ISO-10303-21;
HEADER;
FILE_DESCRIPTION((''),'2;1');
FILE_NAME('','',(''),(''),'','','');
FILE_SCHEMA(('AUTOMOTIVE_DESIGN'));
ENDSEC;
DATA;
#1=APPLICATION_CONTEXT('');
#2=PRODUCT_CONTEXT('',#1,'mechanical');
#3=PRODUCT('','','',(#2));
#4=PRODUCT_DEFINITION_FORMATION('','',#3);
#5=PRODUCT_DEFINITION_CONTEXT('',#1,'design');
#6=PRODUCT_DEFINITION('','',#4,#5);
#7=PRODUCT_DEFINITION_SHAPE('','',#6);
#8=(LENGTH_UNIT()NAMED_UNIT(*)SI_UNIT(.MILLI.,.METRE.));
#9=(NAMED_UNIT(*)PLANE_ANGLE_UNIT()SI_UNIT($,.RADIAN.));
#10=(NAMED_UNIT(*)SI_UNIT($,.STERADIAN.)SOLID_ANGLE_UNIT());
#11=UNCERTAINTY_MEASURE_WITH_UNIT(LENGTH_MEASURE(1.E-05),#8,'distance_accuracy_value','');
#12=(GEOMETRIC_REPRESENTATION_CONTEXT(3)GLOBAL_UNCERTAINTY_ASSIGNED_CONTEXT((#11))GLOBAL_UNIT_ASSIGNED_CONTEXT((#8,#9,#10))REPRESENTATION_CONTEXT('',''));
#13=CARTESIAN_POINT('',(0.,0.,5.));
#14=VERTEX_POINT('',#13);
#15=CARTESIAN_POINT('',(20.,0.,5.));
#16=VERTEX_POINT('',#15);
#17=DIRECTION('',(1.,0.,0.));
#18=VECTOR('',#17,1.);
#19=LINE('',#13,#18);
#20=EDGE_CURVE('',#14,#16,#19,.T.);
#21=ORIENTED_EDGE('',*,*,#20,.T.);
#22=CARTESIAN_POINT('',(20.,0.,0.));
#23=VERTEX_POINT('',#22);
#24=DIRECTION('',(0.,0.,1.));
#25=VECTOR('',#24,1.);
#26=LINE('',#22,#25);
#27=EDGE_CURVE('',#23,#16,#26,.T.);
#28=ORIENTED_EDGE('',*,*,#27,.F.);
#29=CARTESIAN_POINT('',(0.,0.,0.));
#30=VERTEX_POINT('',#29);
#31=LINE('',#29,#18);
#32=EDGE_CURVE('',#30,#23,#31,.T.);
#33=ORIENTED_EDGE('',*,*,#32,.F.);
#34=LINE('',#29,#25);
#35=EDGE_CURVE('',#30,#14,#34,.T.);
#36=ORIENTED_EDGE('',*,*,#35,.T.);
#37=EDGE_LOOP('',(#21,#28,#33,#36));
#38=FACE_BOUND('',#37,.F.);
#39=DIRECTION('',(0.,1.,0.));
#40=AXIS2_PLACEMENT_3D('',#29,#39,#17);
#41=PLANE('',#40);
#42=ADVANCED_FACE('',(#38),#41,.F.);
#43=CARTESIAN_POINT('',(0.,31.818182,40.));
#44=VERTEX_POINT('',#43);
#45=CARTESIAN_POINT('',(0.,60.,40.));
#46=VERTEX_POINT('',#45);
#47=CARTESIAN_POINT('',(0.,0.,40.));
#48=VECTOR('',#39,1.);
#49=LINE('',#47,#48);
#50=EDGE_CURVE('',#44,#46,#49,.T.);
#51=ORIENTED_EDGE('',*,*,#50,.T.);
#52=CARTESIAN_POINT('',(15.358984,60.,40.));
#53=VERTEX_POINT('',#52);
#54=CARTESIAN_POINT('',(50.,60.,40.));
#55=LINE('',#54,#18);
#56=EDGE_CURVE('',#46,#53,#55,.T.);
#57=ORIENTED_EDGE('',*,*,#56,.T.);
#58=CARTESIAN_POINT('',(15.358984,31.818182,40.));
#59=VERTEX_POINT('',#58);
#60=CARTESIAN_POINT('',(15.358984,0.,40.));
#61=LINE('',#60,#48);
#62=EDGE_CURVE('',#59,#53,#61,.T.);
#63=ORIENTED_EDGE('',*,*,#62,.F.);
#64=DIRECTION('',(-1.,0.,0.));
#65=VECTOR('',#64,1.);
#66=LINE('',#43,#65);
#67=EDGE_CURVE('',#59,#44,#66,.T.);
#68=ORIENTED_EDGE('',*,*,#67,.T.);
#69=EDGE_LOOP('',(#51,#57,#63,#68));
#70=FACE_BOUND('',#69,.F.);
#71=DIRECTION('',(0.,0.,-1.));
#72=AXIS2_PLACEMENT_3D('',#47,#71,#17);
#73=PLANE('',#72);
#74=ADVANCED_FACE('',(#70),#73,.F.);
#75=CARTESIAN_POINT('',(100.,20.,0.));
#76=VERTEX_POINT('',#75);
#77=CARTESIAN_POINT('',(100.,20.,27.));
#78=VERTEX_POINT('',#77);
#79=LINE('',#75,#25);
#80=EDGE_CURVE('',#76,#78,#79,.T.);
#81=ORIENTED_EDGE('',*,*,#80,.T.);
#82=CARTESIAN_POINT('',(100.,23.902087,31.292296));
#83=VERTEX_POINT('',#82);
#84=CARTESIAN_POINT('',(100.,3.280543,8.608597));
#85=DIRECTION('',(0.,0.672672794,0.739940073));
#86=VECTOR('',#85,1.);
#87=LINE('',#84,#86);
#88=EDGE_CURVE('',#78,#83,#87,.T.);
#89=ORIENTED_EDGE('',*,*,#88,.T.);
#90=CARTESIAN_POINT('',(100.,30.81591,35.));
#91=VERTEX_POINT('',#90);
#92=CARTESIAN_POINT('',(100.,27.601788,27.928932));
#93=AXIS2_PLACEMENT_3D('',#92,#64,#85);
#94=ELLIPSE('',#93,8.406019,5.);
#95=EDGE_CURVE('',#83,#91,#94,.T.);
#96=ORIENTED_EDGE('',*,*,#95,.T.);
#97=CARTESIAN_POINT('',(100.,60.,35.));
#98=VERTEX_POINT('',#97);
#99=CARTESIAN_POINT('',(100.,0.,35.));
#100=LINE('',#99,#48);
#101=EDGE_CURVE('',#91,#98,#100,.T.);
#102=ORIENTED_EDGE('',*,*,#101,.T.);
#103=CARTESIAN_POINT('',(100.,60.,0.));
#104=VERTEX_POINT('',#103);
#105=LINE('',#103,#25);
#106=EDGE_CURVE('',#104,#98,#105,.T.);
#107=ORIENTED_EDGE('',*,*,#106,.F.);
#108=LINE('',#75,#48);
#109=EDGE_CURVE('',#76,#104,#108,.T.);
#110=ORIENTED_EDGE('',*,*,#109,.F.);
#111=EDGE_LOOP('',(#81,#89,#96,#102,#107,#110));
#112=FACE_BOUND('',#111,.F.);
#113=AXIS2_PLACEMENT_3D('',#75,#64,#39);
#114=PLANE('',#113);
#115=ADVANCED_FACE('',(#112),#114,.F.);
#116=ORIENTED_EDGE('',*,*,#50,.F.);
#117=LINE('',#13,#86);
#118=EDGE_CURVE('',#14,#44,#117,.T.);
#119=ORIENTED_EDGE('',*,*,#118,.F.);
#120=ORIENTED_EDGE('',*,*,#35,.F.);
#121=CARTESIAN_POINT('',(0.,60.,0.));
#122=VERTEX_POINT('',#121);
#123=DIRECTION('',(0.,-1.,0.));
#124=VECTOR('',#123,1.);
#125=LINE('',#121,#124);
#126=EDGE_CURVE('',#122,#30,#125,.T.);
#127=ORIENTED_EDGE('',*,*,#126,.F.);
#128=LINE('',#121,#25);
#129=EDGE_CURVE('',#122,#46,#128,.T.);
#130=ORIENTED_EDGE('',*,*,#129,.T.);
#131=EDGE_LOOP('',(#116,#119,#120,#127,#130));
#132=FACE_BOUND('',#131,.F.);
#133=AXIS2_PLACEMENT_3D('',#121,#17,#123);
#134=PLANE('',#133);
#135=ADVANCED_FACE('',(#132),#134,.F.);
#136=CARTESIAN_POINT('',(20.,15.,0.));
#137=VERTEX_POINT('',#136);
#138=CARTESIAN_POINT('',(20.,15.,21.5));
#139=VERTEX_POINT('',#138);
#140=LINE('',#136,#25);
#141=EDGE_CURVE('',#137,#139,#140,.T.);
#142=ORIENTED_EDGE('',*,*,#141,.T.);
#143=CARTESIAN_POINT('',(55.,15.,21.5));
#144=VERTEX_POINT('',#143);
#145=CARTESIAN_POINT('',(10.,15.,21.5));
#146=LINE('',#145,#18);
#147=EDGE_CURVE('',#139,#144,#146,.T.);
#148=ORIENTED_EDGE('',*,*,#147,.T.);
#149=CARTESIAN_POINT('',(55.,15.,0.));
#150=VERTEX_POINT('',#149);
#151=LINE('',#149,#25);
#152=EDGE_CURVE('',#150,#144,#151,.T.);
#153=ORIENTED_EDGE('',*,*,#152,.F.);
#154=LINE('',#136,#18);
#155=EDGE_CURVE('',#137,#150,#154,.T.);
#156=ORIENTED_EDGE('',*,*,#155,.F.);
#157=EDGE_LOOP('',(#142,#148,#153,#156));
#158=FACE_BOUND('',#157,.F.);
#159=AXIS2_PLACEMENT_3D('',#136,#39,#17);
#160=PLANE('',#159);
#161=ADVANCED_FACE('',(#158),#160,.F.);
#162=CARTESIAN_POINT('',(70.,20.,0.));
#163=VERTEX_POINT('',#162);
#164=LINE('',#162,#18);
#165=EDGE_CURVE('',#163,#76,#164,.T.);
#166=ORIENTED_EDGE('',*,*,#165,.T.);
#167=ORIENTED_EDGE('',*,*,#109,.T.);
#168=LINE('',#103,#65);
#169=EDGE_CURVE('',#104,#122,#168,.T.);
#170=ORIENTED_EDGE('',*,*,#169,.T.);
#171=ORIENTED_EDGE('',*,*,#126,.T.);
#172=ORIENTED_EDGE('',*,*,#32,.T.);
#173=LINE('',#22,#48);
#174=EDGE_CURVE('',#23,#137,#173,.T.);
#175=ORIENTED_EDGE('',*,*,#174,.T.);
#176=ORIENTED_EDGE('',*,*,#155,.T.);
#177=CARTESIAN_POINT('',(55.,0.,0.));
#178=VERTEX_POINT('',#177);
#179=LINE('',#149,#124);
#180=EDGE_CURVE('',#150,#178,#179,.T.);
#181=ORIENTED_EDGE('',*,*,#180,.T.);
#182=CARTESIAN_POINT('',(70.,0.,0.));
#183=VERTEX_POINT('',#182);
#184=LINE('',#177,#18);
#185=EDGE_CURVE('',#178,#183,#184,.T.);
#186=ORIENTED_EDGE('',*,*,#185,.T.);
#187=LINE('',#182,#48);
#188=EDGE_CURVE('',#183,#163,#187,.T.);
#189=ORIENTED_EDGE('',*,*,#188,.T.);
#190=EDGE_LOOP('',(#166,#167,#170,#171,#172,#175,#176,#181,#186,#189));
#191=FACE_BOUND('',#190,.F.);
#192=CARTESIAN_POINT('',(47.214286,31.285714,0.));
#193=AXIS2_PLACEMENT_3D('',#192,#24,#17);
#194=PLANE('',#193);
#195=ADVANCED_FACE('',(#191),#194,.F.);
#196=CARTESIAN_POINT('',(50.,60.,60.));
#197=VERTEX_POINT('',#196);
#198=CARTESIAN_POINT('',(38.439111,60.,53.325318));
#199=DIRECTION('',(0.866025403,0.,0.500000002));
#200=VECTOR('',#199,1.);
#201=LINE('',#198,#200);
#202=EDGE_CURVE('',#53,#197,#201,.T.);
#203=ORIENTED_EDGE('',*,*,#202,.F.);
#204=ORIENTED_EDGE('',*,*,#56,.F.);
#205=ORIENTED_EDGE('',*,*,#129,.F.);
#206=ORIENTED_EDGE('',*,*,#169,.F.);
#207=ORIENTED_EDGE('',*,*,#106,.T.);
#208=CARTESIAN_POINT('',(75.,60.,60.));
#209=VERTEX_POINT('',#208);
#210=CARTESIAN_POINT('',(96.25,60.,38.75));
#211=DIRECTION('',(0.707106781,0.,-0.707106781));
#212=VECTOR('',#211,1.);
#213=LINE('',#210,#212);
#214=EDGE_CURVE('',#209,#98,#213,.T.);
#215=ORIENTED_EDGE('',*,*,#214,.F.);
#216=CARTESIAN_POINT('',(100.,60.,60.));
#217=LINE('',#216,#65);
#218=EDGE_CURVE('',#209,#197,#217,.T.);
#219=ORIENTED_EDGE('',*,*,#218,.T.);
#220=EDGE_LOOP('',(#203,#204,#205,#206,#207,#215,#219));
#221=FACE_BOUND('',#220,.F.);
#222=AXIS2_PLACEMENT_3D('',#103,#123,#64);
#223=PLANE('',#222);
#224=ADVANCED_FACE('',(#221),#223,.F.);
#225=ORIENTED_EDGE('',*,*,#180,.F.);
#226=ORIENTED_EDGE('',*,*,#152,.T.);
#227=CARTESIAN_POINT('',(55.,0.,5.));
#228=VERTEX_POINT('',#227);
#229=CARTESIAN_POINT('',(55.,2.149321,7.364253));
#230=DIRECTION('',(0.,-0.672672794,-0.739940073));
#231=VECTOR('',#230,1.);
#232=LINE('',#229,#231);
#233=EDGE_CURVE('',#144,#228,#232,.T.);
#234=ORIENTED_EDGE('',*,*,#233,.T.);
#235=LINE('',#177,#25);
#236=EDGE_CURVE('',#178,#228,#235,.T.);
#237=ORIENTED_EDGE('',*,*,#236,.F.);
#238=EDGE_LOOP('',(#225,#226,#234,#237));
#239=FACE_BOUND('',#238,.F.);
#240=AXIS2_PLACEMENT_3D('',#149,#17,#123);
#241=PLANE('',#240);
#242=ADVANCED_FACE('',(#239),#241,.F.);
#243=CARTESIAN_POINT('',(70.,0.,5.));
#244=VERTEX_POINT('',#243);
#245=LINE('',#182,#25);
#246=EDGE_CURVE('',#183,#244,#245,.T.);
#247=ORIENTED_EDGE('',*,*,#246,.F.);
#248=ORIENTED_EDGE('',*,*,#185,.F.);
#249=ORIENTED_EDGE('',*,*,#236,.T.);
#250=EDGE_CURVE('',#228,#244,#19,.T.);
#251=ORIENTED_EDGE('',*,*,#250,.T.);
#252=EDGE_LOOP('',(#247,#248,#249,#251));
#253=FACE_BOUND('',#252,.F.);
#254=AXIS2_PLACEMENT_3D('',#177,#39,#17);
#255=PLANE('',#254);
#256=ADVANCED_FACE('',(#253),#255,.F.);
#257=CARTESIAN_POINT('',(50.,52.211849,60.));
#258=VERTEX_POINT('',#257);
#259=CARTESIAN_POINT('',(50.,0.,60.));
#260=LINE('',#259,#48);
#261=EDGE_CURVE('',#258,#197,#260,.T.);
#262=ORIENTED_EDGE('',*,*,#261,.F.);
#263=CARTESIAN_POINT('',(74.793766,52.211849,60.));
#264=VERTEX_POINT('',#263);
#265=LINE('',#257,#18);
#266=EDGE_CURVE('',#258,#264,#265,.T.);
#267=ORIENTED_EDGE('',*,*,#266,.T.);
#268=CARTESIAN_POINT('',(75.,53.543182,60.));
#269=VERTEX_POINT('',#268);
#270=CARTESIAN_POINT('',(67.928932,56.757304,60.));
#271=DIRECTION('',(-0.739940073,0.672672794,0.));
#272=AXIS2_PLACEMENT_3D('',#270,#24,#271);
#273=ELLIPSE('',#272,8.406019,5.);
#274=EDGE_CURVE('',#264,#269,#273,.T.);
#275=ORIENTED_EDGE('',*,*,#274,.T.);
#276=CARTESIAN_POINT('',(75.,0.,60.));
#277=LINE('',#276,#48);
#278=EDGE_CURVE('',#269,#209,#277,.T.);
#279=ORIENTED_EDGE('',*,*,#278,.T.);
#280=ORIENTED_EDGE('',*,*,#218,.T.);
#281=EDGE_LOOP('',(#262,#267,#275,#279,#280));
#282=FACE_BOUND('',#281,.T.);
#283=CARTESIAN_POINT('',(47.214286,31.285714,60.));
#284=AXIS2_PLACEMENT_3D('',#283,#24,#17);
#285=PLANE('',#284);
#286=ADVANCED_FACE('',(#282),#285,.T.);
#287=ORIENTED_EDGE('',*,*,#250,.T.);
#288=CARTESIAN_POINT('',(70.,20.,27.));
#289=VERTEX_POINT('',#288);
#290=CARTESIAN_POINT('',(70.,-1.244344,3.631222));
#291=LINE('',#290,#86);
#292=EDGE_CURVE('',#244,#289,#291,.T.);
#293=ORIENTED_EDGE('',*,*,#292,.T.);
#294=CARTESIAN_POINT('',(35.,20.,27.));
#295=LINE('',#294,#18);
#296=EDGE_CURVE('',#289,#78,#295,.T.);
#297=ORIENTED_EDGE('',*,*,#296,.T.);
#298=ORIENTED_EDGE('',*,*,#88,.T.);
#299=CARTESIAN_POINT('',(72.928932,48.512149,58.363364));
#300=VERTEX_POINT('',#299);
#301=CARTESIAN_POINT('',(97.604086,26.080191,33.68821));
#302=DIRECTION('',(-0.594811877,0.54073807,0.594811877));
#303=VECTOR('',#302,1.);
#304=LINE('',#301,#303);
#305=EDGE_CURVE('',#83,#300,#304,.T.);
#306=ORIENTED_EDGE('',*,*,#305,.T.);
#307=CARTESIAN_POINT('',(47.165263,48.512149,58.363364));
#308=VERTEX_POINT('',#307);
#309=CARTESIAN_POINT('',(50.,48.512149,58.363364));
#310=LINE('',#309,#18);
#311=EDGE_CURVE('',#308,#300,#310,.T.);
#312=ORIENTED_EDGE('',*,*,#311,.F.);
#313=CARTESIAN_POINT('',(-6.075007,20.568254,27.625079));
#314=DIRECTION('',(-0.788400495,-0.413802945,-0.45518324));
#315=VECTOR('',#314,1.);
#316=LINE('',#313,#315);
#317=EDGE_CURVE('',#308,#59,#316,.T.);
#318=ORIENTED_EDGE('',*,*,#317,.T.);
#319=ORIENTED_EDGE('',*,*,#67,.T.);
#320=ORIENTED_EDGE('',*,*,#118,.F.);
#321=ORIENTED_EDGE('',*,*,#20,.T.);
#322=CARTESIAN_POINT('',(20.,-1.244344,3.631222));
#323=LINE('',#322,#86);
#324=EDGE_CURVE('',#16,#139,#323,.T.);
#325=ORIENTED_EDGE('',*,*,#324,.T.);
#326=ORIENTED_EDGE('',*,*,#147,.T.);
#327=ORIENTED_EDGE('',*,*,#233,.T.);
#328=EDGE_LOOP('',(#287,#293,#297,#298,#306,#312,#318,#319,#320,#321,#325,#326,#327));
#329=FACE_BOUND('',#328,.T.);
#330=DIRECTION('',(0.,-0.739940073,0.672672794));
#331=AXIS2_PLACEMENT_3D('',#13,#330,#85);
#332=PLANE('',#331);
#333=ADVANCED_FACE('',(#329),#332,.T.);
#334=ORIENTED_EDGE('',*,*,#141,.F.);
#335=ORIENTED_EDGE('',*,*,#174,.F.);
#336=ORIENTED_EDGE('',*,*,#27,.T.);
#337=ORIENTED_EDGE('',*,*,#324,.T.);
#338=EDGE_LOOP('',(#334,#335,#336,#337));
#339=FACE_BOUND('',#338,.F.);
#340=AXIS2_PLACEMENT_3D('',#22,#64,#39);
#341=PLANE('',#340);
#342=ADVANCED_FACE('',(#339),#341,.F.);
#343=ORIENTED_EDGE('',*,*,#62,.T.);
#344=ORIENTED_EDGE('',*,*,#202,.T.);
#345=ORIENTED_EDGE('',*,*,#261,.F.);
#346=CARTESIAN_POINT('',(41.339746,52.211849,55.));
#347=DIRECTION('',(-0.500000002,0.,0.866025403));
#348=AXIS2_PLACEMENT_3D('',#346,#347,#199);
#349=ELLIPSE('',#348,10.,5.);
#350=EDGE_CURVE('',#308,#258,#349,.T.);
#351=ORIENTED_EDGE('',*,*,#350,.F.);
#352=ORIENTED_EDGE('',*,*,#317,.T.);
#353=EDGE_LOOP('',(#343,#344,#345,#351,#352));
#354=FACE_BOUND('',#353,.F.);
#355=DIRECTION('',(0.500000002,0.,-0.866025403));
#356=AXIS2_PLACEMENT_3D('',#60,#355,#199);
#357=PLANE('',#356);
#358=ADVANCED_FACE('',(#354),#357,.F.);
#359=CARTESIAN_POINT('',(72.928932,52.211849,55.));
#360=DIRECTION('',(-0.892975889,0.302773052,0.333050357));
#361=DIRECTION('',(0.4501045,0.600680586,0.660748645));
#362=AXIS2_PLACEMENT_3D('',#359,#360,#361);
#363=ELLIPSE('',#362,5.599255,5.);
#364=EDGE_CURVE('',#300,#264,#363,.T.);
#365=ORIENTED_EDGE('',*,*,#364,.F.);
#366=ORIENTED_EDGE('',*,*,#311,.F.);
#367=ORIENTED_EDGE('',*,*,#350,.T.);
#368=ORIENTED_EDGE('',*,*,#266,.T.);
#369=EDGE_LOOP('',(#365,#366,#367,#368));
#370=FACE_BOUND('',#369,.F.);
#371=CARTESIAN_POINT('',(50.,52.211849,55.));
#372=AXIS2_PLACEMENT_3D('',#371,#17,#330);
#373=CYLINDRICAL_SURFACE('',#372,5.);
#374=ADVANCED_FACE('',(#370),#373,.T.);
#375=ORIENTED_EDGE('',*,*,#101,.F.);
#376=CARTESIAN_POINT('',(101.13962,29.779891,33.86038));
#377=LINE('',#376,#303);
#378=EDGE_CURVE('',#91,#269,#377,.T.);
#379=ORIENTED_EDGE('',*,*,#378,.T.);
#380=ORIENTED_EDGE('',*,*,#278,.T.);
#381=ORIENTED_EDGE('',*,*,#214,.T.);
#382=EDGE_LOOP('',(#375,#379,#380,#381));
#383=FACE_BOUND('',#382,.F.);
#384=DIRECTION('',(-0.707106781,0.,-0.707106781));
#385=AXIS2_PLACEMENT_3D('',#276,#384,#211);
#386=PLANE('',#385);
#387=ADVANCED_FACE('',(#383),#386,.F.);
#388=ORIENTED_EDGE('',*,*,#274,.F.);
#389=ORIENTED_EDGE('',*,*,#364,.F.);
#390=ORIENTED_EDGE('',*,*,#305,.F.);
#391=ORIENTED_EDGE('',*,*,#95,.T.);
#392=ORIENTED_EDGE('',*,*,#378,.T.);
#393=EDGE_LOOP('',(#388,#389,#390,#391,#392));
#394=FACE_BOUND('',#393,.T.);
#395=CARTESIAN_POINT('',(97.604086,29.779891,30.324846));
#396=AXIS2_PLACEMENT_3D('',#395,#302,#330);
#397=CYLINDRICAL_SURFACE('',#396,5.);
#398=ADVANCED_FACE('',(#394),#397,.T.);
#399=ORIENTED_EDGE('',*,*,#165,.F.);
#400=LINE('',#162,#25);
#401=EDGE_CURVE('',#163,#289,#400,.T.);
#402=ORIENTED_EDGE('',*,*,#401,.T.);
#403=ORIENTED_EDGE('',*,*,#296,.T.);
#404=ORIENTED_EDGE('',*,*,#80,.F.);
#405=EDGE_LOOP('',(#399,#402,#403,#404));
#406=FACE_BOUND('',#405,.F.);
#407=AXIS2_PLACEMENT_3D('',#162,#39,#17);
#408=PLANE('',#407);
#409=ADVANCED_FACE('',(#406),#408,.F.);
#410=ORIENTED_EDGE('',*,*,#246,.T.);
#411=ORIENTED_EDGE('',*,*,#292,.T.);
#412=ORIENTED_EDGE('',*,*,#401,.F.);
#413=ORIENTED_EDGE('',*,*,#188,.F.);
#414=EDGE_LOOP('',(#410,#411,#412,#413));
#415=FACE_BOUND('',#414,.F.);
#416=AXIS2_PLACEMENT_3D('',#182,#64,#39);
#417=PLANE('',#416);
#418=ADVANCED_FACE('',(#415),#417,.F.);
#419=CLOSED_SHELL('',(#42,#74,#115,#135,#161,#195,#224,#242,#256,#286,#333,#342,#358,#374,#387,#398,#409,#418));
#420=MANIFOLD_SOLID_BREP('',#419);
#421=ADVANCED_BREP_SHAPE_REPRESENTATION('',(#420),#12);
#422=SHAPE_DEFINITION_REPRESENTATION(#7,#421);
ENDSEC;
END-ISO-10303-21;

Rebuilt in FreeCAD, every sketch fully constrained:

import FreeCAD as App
import Part
import Sketcher

V = App.Vector
Q = App.Units.Quantity


def edges_at(feature, points):
    """Names of the edges that pass closest to the given points."""
    edges = feature.Shape.Edges
    near = lambda p: min(range(len(edges)), key=lambda i: edges[i].distToShape(Part.Vertex(*p))[0])
    return sorted({f"Edge{near(p) + 1}" for p in points})


def add_polygon(sketch, points):
    """Adds a closed chain of lines whose ends are joined by coincident constraints."""
    first, n = sketch.GeometryCount, len(points)
    for a, b in zip(points, points[1:] + points[:1]):
        sketch.addGeometry(Part.LineSegment(App.Vector(*a, 0), App.Vector(*b, 0)), False)
    for i in range(n):
        sketch.addConstraint(Sketcher.Constraint("Coincident", first + i, 2, first + (i + 1) % n, 1))

doc = App.newDocument("Part")
params = doc.addObject("Spreadsheet::Sheet", "Params")
for row, (alias, value) in enumerate([
    ("sketch1_width", "20 mm"),
    ("sketch1_width2", "35 mm"),
    ("sketch1_width3", "15 mm"),
    ("sketch1_width4", "30 mm"),
    ("sketch1_height", "60 mm"),
    ("pad1_length", "60 mm"),
    ("sketch2_width", "50 mm"),
    ("sketch2_width2", "25 mm"),
    ("sketch2_height", "20 mm"),
    ("sketch3_width", "50 mm"),
    ("sketch3_height", "55 mm"),
    ("fillet_radius", "5 mm"),
], start=1):
    params.set(f"A{row}", alias)
    params.set(f"B{row}", "=" + value)
    params.setAlias(f"B{row}", alias)

body = doc.addObject("PartDesign::Body", "Body")

# Sketch on XY plane
sketch1 = doc.addObject("Sketcher::SketchObject", "Sketch")
body.addObject(sketch1)
sketch1.AttachmentSupport = (doc.XY_Plane, [""])
sketch1.MapMode = "FlatFace"
add_polygon(sketch1, [(0, 60), (0, 0), (20, 0), (20, 15), (55, 15), (55, 0), (70, 0), (70, 20), (100, 20), (100, 60)])  # lines 0-9
sketch1.addConstraint([
    Sketcher.Constraint("Vertical", 0),
    Sketcher.Constraint("Horizontal", 1),
    Sketcher.Constraint("Vertical", 2),
    Sketcher.Constraint("Horizontal", 3),
    Sketcher.Constraint("Vertical", 4),
    Sketcher.Constraint("Horizontal", 5),
    Sketcher.Constraint("Vertical", 6),
    Sketcher.Constraint("Horizontal", 7),
    Sketcher.Constraint("Vertical", 8),
    Sketcher.Constraint("Horizontal", 9),
    Sketcher.Constraint("Coincident", 0, 2, -1, 1),
    Sketcher.Constraint("PointOnObject", 4, 2, -1),
    Sketcher.Constraint("Equal", 5, 2),
    Sketcher.Constraint("Equal", 1, 6),
    Sketcher.Constraint("DistanceX", 1, 1, 1, 2, Q("20 mm")),
    Sketcher.Constraint("DistanceX", 3, 1, 3, 2, Q("35 mm")),
    Sketcher.Constraint("DistanceX", 5, 1, 5, 2, Q("15 mm")),
    Sketcher.Constraint("DistanceX", 7, 1, 7, 2, Q("30 mm")),
    Sketcher.Constraint("DistanceY", 0, 2, 0, 1, Q("60 mm")),
])
sketch1.setExpression("Constraints[24]", "Params.sketch1_width")
sketch1.setExpression("Constraints[25]", "Params.sketch1_width2")
sketch1.setExpression("Constraints[26]", "Params.sketch1_width3")
sketch1.setExpression("Constraints[27]", "Params.sketch1_width4")
sketch1.setExpression("Constraints[28]", "Params.sketch1_height")
pad1 = doc.addObject("PartDesign::Pad", "Pad")
body.addObject(pad1)
pad1.Profile = sketch1
pad1.setExpression("Length", "Params.pad1_length")

# Sketch on XZ plane
sketch2 = doc.addObject("Sketcher::SketchObject", "Sketch001")
body.addObject(sketch2)
sketch2.AttachmentSupport = (doc.XZ_Plane, [""])
sketch2.MapMode = "FlatFace"
add_polygon(sketch2, [(15.358984, 40), (50, 60), (0, 60), (0, 40)])  # lines 0-3
add_polygon(sketch2, [(100, 60), (75, 60), (100, 35)])  # lines 4-6
sketch2.addConstraint([
    Sketcher.Constraint("Horizontal", 1),
    Sketcher.Constraint("Vertical", 2),
    Sketcher.Constraint("Horizontal", 3),
    Sketcher.Constraint("Horizontal", 4),
    Sketcher.Constraint("Vertical", 6),
    Sketcher.Constraint("PointOnObject", 1, 2, -2),
    Sketcher.Constraint("Horizontal", 1, 2, 4, 2),
    Sketcher.Constraint("Equal", 4, 6),
    Sketcher.Constraint("DistanceX", 1, 2, 1, 1, Q("50 mm")),
    Sketcher.Constraint("DistanceX", 4, 2, 4, 1, Q("25 mm")),
    Sketcher.Constraint("DistanceY", 2, 2, 2, 1, Q("20 mm")),
    Sketcher.Constraint("Angle", 0, Q("30 deg")),
    Sketcher.Constraint("DistanceY", -1, 1, 0, 2, Q("60 mm")),
    Sketcher.Constraint("DistanceX", -1, 1, 4, 2, Q("75 mm")),
])
sketch2.setExpression("Constraints[15]", "Params.sketch2_width")
sketch2.setExpression("Constraints[16]", "Params.sketch2_width2")
sketch2.setExpression("Constraints[17]", "Params.sketch2_height")
pocket1 = doc.addObject("PartDesign::Pocket", "Pocket")
body.addObject(pocket1)
pocket1.Profile = sketch2
pocket1.Type = "ThroughAll"

# Sketch on YZ plane
sketch3 = doc.addObject("Sketcher::SketchObject", "Sketch002")
body.addObject(sketch3)
sketch3.AttachmentSupport = (doc.YZ_Plane, [""])
sketch3.MapMode = "FlatFace"
add_polygon(sketch3, [(0, 5), (50, 60), (0, 60)])  # lines 0-2
sketch3.addConstraint([
    Sketcher.Constraint("Horizontal", 1),
    Sketcher.Constraint("Vertical", 2),
    Sketcher.Constraint("PointOnObject", 1, 2, -2),
    Sketcher.Constraint("DistanceX", 1, 2, 1, 1, Q("50 mm")),
    Sketcher.Constraint("DistanceY", 2, 2, 2, 1, Q("55 mm")),
    Sketcher.Constraint("DistanceY", -1, 1, 0, 2, Q("60 mm")),
])
sketch3.setExpression("Constraints[6]", "Params.sketch3_width")
sketch3.setExpression("Constraints[7]", "Params.sketch3_height")
pocket2 = doc.addObject("PartDesign::Pocket", "Pocket001")
body.addObject(pocket2)
pocket2.Profile = sketch3
pocket2.Type = "ThroughAll"
pocket2.Reversed = True
doc.recompute()

fillet = doc.addObject("PartDesign::Fillet", "Fillet")
body.addObject(fillet)
fillet.Base = (pocket2, edges_at(pocket2, [(62.5, 50, 60), (87.5, 38.636, 47.5)]))
fillet.setExpression("Radius", "Params.fillet_radius")

doc.recompute()
